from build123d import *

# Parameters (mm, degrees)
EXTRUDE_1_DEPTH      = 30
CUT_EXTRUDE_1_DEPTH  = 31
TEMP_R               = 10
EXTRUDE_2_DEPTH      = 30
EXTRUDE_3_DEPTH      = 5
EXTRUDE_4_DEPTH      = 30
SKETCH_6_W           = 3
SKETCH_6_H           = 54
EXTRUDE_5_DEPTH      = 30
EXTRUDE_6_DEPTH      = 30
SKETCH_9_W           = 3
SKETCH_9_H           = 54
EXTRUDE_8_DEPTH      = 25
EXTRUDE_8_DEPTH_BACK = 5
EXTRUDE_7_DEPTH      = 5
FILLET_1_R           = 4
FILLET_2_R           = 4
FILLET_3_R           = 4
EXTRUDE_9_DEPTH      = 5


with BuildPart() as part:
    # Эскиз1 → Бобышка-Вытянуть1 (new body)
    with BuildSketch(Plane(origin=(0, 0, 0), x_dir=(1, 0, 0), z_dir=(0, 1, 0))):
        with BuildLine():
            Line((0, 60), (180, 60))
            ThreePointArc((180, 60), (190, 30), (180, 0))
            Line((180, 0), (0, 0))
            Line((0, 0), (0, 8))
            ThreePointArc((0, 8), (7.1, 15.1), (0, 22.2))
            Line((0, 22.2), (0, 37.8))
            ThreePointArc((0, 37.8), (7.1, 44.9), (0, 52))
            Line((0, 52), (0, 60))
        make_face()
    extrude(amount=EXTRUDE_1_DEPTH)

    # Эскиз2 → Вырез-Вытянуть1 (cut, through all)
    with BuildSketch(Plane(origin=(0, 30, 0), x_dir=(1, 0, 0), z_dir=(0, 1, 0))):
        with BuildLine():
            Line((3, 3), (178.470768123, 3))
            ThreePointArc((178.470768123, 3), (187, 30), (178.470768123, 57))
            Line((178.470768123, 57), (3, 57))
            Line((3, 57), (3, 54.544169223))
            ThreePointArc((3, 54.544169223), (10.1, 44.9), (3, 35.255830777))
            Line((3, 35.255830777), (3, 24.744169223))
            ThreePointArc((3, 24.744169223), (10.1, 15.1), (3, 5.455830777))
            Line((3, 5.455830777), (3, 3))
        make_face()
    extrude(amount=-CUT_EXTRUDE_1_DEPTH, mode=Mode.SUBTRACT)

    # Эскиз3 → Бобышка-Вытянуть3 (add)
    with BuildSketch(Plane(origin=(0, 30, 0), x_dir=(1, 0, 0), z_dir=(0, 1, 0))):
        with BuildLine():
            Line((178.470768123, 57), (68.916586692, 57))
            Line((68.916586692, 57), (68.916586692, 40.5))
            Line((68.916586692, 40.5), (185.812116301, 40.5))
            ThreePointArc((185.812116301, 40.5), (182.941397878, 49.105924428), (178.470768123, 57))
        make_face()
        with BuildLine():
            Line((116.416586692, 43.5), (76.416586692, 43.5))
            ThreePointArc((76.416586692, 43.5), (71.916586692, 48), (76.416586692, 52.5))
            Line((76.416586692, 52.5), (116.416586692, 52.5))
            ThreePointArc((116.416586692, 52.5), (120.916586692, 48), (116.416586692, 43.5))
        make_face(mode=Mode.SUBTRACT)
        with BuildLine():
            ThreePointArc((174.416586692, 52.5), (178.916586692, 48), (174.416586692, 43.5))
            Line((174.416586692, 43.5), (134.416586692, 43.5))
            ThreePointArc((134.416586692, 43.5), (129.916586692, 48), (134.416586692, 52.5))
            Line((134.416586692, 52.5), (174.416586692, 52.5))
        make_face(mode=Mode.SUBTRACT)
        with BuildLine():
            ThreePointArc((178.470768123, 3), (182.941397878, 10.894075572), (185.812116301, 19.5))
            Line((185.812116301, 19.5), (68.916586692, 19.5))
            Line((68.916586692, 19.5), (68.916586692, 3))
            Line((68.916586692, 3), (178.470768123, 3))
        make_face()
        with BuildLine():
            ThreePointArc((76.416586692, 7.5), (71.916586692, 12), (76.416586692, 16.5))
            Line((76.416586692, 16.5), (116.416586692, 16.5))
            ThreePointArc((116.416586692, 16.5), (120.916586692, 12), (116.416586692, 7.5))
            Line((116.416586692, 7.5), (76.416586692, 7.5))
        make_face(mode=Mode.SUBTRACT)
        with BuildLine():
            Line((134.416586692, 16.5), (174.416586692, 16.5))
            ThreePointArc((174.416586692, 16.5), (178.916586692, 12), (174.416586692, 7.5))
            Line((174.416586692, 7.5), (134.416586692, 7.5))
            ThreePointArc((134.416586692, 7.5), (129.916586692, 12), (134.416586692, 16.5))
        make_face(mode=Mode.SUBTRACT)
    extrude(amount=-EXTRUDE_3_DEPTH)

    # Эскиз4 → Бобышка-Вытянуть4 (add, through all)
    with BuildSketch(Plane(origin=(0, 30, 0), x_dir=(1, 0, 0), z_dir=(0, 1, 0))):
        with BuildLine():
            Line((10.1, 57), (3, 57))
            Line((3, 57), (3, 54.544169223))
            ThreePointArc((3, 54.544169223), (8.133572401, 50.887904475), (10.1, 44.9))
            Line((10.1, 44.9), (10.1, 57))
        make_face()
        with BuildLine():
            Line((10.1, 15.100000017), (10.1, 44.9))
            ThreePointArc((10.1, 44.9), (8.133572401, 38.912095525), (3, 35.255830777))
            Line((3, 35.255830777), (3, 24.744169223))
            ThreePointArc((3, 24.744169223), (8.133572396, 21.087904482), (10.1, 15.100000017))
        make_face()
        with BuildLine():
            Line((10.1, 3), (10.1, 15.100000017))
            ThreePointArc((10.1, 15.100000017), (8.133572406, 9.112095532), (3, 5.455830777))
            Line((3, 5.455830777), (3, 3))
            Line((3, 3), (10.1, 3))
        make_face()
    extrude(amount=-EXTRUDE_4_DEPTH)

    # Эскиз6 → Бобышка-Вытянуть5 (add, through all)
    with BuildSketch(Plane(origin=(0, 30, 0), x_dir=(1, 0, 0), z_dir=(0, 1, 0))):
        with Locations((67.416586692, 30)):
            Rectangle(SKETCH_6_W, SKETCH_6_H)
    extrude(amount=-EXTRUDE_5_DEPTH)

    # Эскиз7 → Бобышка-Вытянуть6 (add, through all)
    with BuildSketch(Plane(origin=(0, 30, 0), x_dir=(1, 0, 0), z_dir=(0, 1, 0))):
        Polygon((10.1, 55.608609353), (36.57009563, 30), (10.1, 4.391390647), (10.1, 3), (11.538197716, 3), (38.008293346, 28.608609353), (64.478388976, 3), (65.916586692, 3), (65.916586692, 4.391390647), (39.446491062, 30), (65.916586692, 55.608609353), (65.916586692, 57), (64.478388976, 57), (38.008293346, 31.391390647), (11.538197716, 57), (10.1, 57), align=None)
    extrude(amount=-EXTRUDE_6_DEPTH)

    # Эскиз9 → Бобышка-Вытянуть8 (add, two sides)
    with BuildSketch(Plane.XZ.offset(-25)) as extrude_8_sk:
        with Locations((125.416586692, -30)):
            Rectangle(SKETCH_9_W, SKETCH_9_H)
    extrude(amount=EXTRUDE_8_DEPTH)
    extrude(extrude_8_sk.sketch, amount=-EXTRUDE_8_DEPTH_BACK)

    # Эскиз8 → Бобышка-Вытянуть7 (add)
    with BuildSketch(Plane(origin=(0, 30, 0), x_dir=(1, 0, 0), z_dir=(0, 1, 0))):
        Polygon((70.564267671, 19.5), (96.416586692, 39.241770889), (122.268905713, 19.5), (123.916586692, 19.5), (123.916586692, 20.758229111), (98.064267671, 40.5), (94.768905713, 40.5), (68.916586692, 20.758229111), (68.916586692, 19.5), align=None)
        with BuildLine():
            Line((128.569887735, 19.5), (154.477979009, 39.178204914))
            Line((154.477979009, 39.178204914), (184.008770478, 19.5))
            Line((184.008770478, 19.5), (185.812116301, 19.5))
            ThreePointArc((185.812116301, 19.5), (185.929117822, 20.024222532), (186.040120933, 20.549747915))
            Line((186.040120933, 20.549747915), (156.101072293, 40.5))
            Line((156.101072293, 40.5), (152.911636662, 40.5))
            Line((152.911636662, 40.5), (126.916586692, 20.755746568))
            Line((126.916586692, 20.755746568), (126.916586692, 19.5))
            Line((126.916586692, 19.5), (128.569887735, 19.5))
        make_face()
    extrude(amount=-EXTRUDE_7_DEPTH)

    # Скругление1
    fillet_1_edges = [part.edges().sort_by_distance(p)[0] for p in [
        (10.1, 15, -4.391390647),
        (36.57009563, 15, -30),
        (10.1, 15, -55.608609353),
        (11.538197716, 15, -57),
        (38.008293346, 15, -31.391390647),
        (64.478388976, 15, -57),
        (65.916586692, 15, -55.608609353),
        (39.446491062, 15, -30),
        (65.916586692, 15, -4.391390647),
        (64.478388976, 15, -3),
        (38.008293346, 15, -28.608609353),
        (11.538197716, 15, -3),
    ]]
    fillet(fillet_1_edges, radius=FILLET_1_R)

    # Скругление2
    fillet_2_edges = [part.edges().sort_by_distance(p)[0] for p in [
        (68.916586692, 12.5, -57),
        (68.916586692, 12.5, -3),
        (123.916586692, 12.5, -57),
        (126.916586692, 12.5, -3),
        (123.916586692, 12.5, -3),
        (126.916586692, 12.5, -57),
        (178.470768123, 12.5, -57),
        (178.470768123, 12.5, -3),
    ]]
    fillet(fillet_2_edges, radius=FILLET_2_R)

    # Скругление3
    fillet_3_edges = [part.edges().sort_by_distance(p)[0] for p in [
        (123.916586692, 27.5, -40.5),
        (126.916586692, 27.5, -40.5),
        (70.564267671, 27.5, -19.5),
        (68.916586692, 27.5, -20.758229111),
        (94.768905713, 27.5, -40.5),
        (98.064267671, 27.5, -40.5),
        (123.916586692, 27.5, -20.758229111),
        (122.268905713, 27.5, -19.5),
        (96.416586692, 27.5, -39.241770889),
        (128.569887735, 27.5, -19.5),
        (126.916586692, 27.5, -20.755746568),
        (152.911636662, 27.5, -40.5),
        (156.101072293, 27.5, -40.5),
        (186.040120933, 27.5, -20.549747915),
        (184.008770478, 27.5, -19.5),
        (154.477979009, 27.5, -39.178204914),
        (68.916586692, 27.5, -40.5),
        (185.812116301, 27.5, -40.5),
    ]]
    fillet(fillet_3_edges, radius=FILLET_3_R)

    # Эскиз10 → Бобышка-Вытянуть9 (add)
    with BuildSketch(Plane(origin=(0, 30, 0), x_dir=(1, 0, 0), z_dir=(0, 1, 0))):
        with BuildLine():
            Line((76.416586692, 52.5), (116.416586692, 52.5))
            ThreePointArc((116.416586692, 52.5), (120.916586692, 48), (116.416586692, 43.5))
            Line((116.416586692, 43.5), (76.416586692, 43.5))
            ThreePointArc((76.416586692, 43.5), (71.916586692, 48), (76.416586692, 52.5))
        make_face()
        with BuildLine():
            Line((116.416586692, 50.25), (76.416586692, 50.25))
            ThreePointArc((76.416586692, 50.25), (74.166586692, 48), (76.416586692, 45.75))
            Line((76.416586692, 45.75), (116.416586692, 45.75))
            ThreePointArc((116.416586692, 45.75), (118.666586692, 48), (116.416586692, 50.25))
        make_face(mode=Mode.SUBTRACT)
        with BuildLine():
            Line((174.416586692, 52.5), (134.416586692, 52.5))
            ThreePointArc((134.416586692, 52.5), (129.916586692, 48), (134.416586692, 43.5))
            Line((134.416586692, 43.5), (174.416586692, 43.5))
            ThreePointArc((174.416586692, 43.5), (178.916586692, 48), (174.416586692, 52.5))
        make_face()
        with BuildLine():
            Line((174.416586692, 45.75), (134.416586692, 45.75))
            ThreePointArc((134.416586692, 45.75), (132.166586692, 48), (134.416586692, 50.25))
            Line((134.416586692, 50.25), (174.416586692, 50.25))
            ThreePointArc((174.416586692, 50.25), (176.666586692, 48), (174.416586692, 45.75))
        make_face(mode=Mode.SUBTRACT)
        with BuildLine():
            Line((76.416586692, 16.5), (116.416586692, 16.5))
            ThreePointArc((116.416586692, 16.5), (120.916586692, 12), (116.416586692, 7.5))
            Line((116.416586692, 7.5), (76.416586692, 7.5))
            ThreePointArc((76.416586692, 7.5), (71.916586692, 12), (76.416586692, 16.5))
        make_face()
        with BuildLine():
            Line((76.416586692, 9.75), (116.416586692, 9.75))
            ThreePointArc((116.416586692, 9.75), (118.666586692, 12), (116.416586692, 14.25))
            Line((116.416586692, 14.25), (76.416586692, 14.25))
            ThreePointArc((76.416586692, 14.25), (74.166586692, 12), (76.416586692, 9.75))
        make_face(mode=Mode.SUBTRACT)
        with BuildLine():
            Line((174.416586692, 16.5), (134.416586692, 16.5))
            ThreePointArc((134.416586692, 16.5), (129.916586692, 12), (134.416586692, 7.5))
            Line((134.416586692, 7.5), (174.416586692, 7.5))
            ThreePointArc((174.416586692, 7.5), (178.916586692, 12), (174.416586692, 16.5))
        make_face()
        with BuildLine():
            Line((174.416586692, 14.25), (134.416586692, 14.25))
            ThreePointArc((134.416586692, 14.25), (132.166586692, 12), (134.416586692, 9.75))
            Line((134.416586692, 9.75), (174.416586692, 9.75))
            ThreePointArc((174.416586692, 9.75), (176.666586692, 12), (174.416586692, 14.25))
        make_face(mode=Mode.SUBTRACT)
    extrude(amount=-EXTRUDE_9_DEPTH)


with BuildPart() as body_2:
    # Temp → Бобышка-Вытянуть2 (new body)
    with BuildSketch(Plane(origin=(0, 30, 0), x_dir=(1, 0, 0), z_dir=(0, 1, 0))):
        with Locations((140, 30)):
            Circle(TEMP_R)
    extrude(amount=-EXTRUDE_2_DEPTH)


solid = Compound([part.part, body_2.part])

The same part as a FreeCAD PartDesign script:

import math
import FreeCAD as App
import Part
import Sketcher
from FreeCAD import Vector


def edges_at(feature, points):
    """Names of the edges that pass closest to the given points."""
    edges = feature.Shape.Edges
    near = lambda p: min(range(len(edges)), key=lambda i: edges[i].distToShape(Part.Vertex(*p))[0])
    return sorted({f"Edge{near(p) + 1}" for p in points})

doc = App.newDocument("Part")
params = doc.addObject("Spreadsheet::Sheet", "Params")
for row, (alias, value) in enumerate([
    ("sketch1_radius", "50 mm"),
    ("sketch1_radius2", "7.1 mm"),
    ("sketch1_width", "180 mm"),
    ("sketch1_height", "8 mm"),
    ("sketch1_height2", "15.6 mm"),
    ("pad1_length", "30 mm"),
    ("sketch2_radius", "47 mm"),
    ("sketch2_radius2", "10.1 mm"),
    ("sketch3_radius", "47 mm"),
    ("sketch3_radius2", "4.5 mm"),
    ("sketch3_width", "40 mm"),
    ("sketch3_height", "16.5 mm"),
    ("pad2_length", "5 mm"),
    ("sketch4_radius", "10.1 mm"),
    ("sketch4_width", "7.1 mm"),
    ("sketch4_height", "12.1 mm"),
    ("sketch4_height2", "29.8 mm"),
    ("pad3_length", "30 mm"),
    ("sketch5_width", "3 mm"),
    ("sketch5_height", "54 mm"),
    ("pad4_length", "30 mm"),
    ("pad5_length", "30 mm"),
    ("sketch7_width", "3 mm"),
    ("sketch7_height", "54 mm"),
    ("pad6_length", "25 mm"),
    ("pad6_length2", "5 mm"),
    ("pad7_length", "5 mm"),
    ("fillet_radius", "4 mm"),
    ("fillet2_radius", "4 mm"),
    ("fillet3_radius", "4 mm"),
    ("sketch9_radius", "4.5 mm"),
    ("sketch9_width", "40 mm"),
    ("sketch9_radius2", "2.25 mm"),
    ("pad8_length", "5 mm"),
    ("sketch10_diameter", "20 mm"),
    ("pad9_length", "30 mm"),
], start=1):
    params.set(f"A{row}", alias)
    params.set(f"B{row}", "=" + value)
    params.setAlias(f"B{row}", alias)

body = doc.addObject("PartDesign::Body", "Body")

sketch1 = body.newObject("Sketcher::SketchObject", "Sketch")
sketch1.AttachmentSupport = (doc.getObject("XZ_Plane"), [""])
sketch1.MapMode = "FlatFace"
sketch1.addGeometry([
    Part.LineSegment(Vector(180, -60, 0), Vector(0, -60, 0)),
    Part.LineSegment(Vector(0, -60, 0), Vector(0, -52, 0)),
    Part.ArcOfCircle(Part.Circle(Vector(0, -45, 0), Vector(0, 0, 1), 7), math.radians(-90), math.radians(90)),
    Part.LineSegment(Vector(0, -38, 0), Vector(0, -22, 0)),
    Part.ArcOfCircle(Part.Circle(Vector(0, -15, 0), Vector(0, 0, 1), 7), math.radians(-90), math.radians(90)),
    Part.LineSegment(Vector(0, -8, 0), Vector(0, 0, 0)),
    Part.LineSegment(Vector(0, 0, 0), Vector(180, 0, 0)),
    Part.ArcOfCircle(Part.Circle(Vector(140, -30, 0), Vector(0, 0, 1), 50), math.radians(-37), math.radians(37)),
], False)
sketch1.addConstraint([
    Sketcher.Constraint("Coincident", 0, 2, 1, 1),
    Sketcher.Constraint("Coincident", 1, 2, 2, 1),
    Sketcher.Constraint("Coincident", 2, 2, 3, 1),
    Sketcher.Constraint("Coincident", 3, 2, 4, 1),
    Sketcher.Constraint("Coincident", 4, 2, 5, 1),
    Sketcher.Constraint("Coincident", 5, 2, 6, 1),
    Sketcher.Constraint("Coincident", 6, 2, 7, 2),
    Sketcher.Constraint("Coincident", 7, 1, 0, 1),
    Sketcher.Constraint("Horizontal", 0),
    Sketcher.Constraint("Vertical", 1),
    Sketcher.Constraint("Vertical", 3),
    Sketcher.Constraint("Vertical", 5),
    Sketcher.Constraint("Horizontal", 6),
    Sketcher.Constraint("Coincident", 5, 2, -1, 1),
    Sketcher.Constraint("Equal", 2, 4),
    Sketcher.Constraint("PointOnObject", 2, 3, -2),
    Sketcher.Constraint("PointOnObject", 4, 3, -2),
    Sketcher.Constraint("PointOnObject", 0, 2, -2),
    Sketcher.Constraint("PointOnObject", 2, 2, -2),
    Sketcher.Constraint("Vertical", 6, 2, 7, 1),
    Sketcher.Constraint("Equal", 1, 5),
    Sketcher.Constraint("Radius", 7, 50.0),
    Sketcher.Constraint("Radius", 2, 7.1),
    Sketcher.Constraint("DistanceX", 0, 2, 0, 1, 180.0),
    Sketcher.Constraint("DistanceY", 1, 1, 1, 2, 8.0),
    Sketcher.Constraint("DistanceY", 3, 1, 3, 2, 15.6),
])
sketch1.setExpression("Constraints[21]", "Params.sketch1_radius")
sketch1.setExpression("Constraints[22]", "Params.sketch1_radius2")
sketch1.setExpression("Constraints[23]", "Params.sketch1_width")
sketch1.setExpression("Constraints[24]", "Params.sketch1_height")
sketch1.setExpression("Constraints[25]", "Params.sketch1_height2")
pad1 = body.newObject("PartDesign::Pad", "Pad")
pad1.Profile = sketch1
pad1.setExpression("Length", "Params.pad1_length")
pad1.Reversed = True

sketch2 = body.newObject("Sketcher::SketchObject", "Sketch001")
sketch2.AttachmentSupport = (doc.getObject("XZ_Plane"), [""])
sketch2.MapMode = "FlatFace"
sketch2.AttachmentOffset = App.Placement(Vector(0, 0, -30), App.Rotation())
sketch2.addGeometry([
    Part.LineSegment(Vector(3, -3, 0), Vector(178.5, -3, 0)),
    Part.ArcOfCircle(Part.Circle(Vector(140, -30, 0), Vector(0, 0, 1), 47), math.radians(-35), math.radians(35)),
    Part.LineSegment(Vector(178.5, -57, 0), Vector(3, -57, 0)),
    Part.LineSegment(Vector(3, -57, 0), Vector(3, -54.5, 0)),
    Part.ArcOfCircle(Part.Circle(Vector(0, -44.9, 0), Vector(0, 0, 1), 10.1), math.radians(-73), math.radians(73)),
    Part.LineSegment(Vector(3, -35.3, 0), Vector(3, -24.7, 0)),
    Part.ArcOfCircle(Part.Circle(Vector(0, -15.1, 0), Vector(0, 0, 1), 10.1), math.radians(-73), math.radians(73)),
    Part.LineSegment(Vector(3, -5.5, 0), Vector(3, -3, 0)),
], False)
sketch2.addConstraint([
    Sketcher.Constraint("Coincident", 0, 2, 1, 2),
    Sketcher.Constraint("Coincident", 1, 1, 2, 1),
    Sketcher.Constraint("Coincident", 2, 2, 3, 1),
    Sketcher.Constraint("Coincident", 3, 2, 4, 1),
    Sketcher.Constraint("Coincident", 4, 2, 5, 1),
    Sketcher.Constraint("Coincident", 5, 2, 6, 1),
    Sketcher.Constraint("Coincident", 6, 2, 7, 1),
    Sketcher.Constraint("Coincident", 7, 2, 0, 1),
    Sketcher.Constraint("Horizontal", 0),
    Sketcher.Constraint("Horizontal", 2),
    Sketcher.Constraint("Vertical", 3),
    Sketcher.Constraint("Vertical", 5),
    Sketcher.Constraint("Vertical", 7),
    Sketcher.Constraint("Equal", 4, 6),
    Sketcher.Constraint("PointOnObject", 4, 3, -2),
    Sketcher.Constraint("PointOnObject", 6, 3, -2),
    Sketcher.Constraint("Vertical", 0, 2, 1, 1),
    Sketcher.Constraint("Vertical", 3, 2, 4, 2),
    Sketcher.Constraint("Vertical", 5, 2, 6, 2),
    Sketcher.Constraint("Equal", 3, 7),
    Sketcher.Constraint("Radius", 1, 47.0),
    Sketcher.Constraint("Radius", 4, 10.1),
    Sketcher.Constraint("DistanceX", -1, 1, 1, 3, 140.0),
    Sketcher.Constraint("DistanceY", 1, 3, -1, 1, 30.0),
    Sketcher.Constraint("DistanceY", 0, 2, -1, 1, 3.0),
    Sketcher.Constraint("DistanceX", -1, 1, 2, 2, 3.0),
    Sketcher.Constraint("DistanceY", 4, 3, -1, 1, 44.9),
])
sketch2.setExpression("Constraints[20]", "Params.sketch2_radius")
sketch2.setExpression("Constraints[21]", "Params.sketch2_radius2")
pocket1 = body.newObject("PartDesign::Pocket", "Pocket")
pocket1.Profile = sketch2
pocket1.Type = "ThroughAll"
pocket1.Reversed = True

sketch3 = body.newObject("Sketcher::SketchObject", "Sketch002")
sketch3.AttachmentSupport = (doc.getObject("XZ_Plane"), [""])
sketch3.MapMode = "FlatFace"
sketch3.AttachmentOffset = App.Placement(Vector(0, 0, -30), App.Rotation())
sketch3.addGeometry([
    Part.LineSegment(Vector(178.5, -57, 0), Vector(68.9, -57, 0)),
    Part.LineSegment(Vector(68.9, -57, 0), Vector(68.9, -40.5, 0)),
    Part.LineSegment(Vector(68.9, -40.5, 0), Vector(185.8, -40.5, 0)),
    Part.ArcOfCircle(Part.Circle(Vector(140, -30, 0), Vector(0, 0, 1), 47), math.radians(-35), math.radians(-13)),
    Part.ArcOfCircle(Part.Circle(Vector(116.4, -48, 0), Vector(0, 0, 1), 4.5), math.radians(-90), math.radians(90)),
    Part.LineSegment(Vector(116.4, -43.5, 0), Vector(76.4, -43.5, 0)),
    Part.ArcOfCircle(Part.Circle(Vector(76.4, -48, 0), Vector(0, 0, 1), 4.5), math.radians(90), math.radians(270)),
    Part.LineSegment(Vector(76.4, -52.5, 0), Vector(116.4, -52.5, 0)),
    Part.LineSegment(Vector(134.4, -52.5, 0), Vector(174.4, -52.5, 0)),
    Part.ArcOfCircle(Part.Circle(Vector(174.4, -48, 0), Vector(0, 0, 1), 4.5), math.radians(-90), math.radians(90)),
    Part.LineSegment(Vector(174.4, -43.5, 0), Vector(134.4, -43.5, 0)),
    Part.ArcOfCircle(Part.Circle(Vector(134.4, -48, 0), Vector(0, 0, 1), 4.5), math.radians(90), math.radians(270)),
    Part.ArcOfCircle(Part.Circle(Vector(140, -30, 0), Vector(0, 0, 1), 47), math.radians(13), math.radians(35)),
    Part.LineSegment(Vector(185.8, -19.5, 0), Vector(68.9, -19.5, 0)),
    Part.LineSegment(Vector(68.9, -19.5, 0), Vector(68.9, -3, 0)),
    Part.LineSegment(Vector(68.9, -3, 0), Vector(178.5, -3, 0)),
    Part.LineSegment(Vector(116.4, -7.5, 0), Vector(76.4, -7.5, 0)),
    Part.ArcOfCircle(Part.Circle(Vector(76.4, -12, 0), Vector(0, 0, 1), 4.5), math.radians(90), math.radians(270)),
    Part.LineSegment(Vector(76.4, -16.5, 0), Vector(116.4, -16.5, 0)),
    Part.ArcOfCircle(Part.Circle(Vector(116.4, -12, 0), Vector(0, 0, 1), 4.5), math.radians(-90), math.radians(90)),
    Part.ArcOfCircle(Part.Circle(Vector(134.4, -12, 0), Vector(0, 0, 1), 4.5), math.radians(90), math.radians(270)),
    Part.LineSegment(Vector(134.4, -16.5, 0), Vector(174.4, -16.5, 0)),
    Part.ArcOfCircle(Part.Circle(Vector(174.4, -12, 0), Vector(0, 0, 1), 4.5), math.radians(-90), math.radians(90)),
    Part.LineSegment(Vector(174.4, -7.5, 0), Vector(134.4, -7.5, 0)),
], False)
sketch3.addConstraint([
    Sketcher.Constraint("Coincident", 0, 2, 1, 1),
    Sketcher.Constraint("Coincident", 1, 2, 2, 1),
    Sketcher.Constraint("Coincident", 2, 2, 3, 2),
    Sketcher.Constraint("Coincident", 3, 1, 0, 1),
    Sketcher.Constraint("Tangent", 4, 2, 5, 1),
    Sketcher.Constraint("Tangent", 5, 2, 6, 1),
    Sketcher.Constraint("Tangent", 6, 2, 7, 1),
    Sketcher.Constraint("Tangent", 7, 2, 4, 1),
    Sketcher.Constraint("Tangent", 8, 2, 9, 1),
    Sketcher.Constraint("Tangent", 9, 2, 10, 1),
    Sketcher.Constraint("Tangent", 10, 2, 11, 1),
    Sketcher.Constraint("Tangent", 11, 2, 8, 1),
    Sketcher.Constraint("Coincident", 12, 1, 13, 1),
    Sketcher.Constraint("Coincident", 13, 2, 14, 1),
    Sketcher.Constraint("Coincident", 14, 2, 15, 1),
    Sketcher.Constraint("Coincident", 15, 2, 12, 2),
    Sketcher.Constraint("Tangent", 16, 2, 17, 1),
    Sketcher.Constraint("Tangent", 17, 2, 18, 1),
    Sketcher.Constraint("Tangent", 18, 2, 19, 1),
    Sketcher.Constraint("Tangent", 19, 2, 16, 1),
    Sketcher.Constraint("Tangent", 20, 2, 21, 1),
    Sketcher.Constraint("Tangent", 21, 2, 22, 1),
    Sketcher.Constraint("Tangent", 22, 2, 23, 1),
    Sketcher.Constraint("Tangent", 23, 2, 20, 1),
    Sketcher.Constraint("Horizontal", 0),
    Sketcher.Constraint("Vertical", 1),
    Sketcher.Constraint("Horizontal", 2),
    Sketcher.Constraint("Horizontal", 5),
    Sketcher.Constraint("Horizontal", 7),
    Sketcher.Constraint("Horizontal", 8),
    Sketcher.Constraint("Horizontal", 10),
    Sketcher.Constraint("Horizontal", 13),
    Sketcher.Constraint("Vertical", 14),
    Sketcher.Constraint("Horizontal", 15),
    Sketcher.Constraint("Horizontal", 16),
    Sketcher.Constraint("Horizontal", 18),
    Sketcher.Constraint("Horizontal", 21),
    Sketcher.Constraint("Horizontal", 23),
    Sketcher.Constraint("Coincident", 12, 3, 3, 3),
    Sketcher.Constraint("Equal", 6, 9),
    Sketcher.Constraint("Equal", 3, 12),
    Sketcher.Constraint("Equal", 11, 17),
    Sketcher.Constraint("Equal", 19, 20),
    Sketcher.Constraint("Horizontal", 6, 3, 9, 3),
    Sketcher.Constraint("Horizontal", 19, 3, 20, 3),
    Sketcher.Constraint("Vertical", 6, 3, 17, 3),
    Sketcher.Constraint("Vertical", 4, 3, 19, 3),
    Sketcher.Constraint("Vertical", 11, 3, 20, 3),
    Sketcher.Constraint("Vertical", 9, 3, 22, 3),
    Sketcher.Constraint("Vertical", 2, 2, 12, 1),
    Sketcher.Constraint("Vertical", 1, 2, 13, 2),
    Sketcher.Constraint("Vertical", 3, 1, 15, 2),
    Sketcher.Constraint("Equal", 7, 8),
    Sketcher.Constraint("Radius", 3, 47.0),
    Sketcher.Constraint("Radius", 4, 4.5),
    Sketcher.Constraint("DistanceX", 5, 2, 5, 1, 40.0),
    Sketcher.Constraint("DistanceY", 1, 1, 1, 2, 16.5),
    Sketcher.Constraint("DistanceX", -1, 1, 3, 3, 140.0),
    Sketcher.Constraint("DistanceY", 3, 3, -1, 1, 30.0),
    Sketcher.Constraint("DistanceY", 4, 3, -1, 1, 48.0),
    Sketcher.Constraint("DistanceY", 17, 3, -1, 1, 12.0),
    Sketcher.Constraint("DistanceY", 0, 2, -1, 1, 57.0),
    Sketcher.Constraint("DistanceX", 4, 3, 9, 3, 58.0),
    Sketcher.Constraint("DistanceX", 0, 2, 6, 3, 7.5),
    Sketcher.Constraint("DistanceX", 0, 2, 0, 1, 109.554181),
])
sketch3.setExpression("Constraints[53]", "Params.sketch3_radius")
sketch3.setExpression("Constraints[54]", "Params.sketch3_radius2")
sketch3.setExpression("Constraints[55]", "Params.sketch3_width")
sketch3.setExpression("Constraints[56]", "Params.sketch3_height")
pad2 = body.newObject("PartDesign::Pad", "Pad001")
pad2.Profile = sketch3
pad2.setExpression("Length", "Params.pad2_length")

sketch4 = body.newObject("Sketcher::SketchObject", "Sketch003")
sketch4.AttachmentSupport = (doc.getObject("XZ_Plane"), [""])
sketch4.MapMode = "FlatFace"
sketch4.AttachmentOffset = App.Placement(Vector(0, 0, -30), App.Rotation())
sketch4.addGeometry([
    Part.LineSegment(Vector(10.1, -57, 0), Vector(3, -57, 0)),
    Part.LineSegment(Vector(3, -57, 0), Vector(3, -54.5, 0)),
    Part.ArcOfCircle(Part.Circle(Vector(0, -44.9, 0), Vector(0, 0, 1), 10.1), math.radians(-73), math.radians(0)),
    Part.LineSegment(Vector(10.1, -44.9, 0), Vector(10.1, -57, 0)),
    Part.LineSegment(Vector(10.1, -15.1, 0), Vector(10.1, -44.9, 0)),
    Part.ArcOfCircle(Part.Circle(Vector(0, -44.9, 0), Vector(0, 0, 1), 10.1), math.radians(0), math.radians(73)),
    Part.LineSegment(Vector(3, -35.3, 0), Vector(3, -24.7, 0)),
    Part.ArcOfCircle(Part.Circle(Vector(0, -15.1, 0), Vector(0, 0, 1), 10.1), math.radians(-73), math.radians(0)),
    Part.LineSegment(Vector(10.1, -3, 0), Vector(10.1, -15.1, 0)),
    Part.ArcOfCircle(Part.Circle(Vector(0, -15.1, 0), Vector(0, 0, 1), 10.1), math.radians(0), math.radians(73)),
    Part.LineSegment(Vector(3, -5.5, 0), Vector(3, -3, 0)),
    Part.LineSegment(Vector(3, -3, 0), Vector(10.1, -3, 0)),
], False)
sketch4.addConstraint([
    Sketcher.Constraint("Coincident", 0, 2, 1, 1),
    Sketcher.Constraint("Coincident", 1, 2, 2, 1),
    Sketcher.Constraint("Tangent", 2, 2, 3, 1),
    Sketcher.Constraint("Coincident", 3, 2, 0, 1),
    Sketcher.Constraint("Tangent", 4, 2, 5, 1),
    Sketcher.Constraint("Coincident", 5, 2, 6, 1),
    Sketcher.Constraint("Coincident", 6, 2, 7, 1),
    Sketcher.Constraint("Tangent", 7, 2, 4, 1),
    Sketcher.Constraint("Tangent", 8, 2, 9, 1),
    Sketcher.Constraint("Coincident", 9, 2, 10, 1),
    Sketcher.Constraint("Coincident", 10, 2, 11, 1),
    Sketcher.Constraint("Coincident", 11, 2, 8, 1),
    Sketcher.Constraint("Horizontal", 0),
    Sketcher.Constraint("Vertical", 1),
    Sketcher.Constraint("Vertical", 3),
    Sketcher.Constraint("Vertical", 4),
    Sketcher.Constraint("Vertical", 6),
    Sketcher.Constraint("Vertical", 8),
    Sketcher.Constraint("Vertical", 10),
    Sketcher.Constraint("Horizontal", 11),
    Sketcher.Constraint("Coincident", 5, 3, 2, 3),
    Sketcher.Constraint("Coincident", 9, 3, 7, 3),
    Sketcher.Constraint("Equal", 2, 5),
    Sketcher.Constraint("Equal", 5, 7),
    Sketcher.Constraint("Equal", 7, 9),
    Sketcher.Constraint("PointOnObject", 2, 3, -2),
    Sketcher.Constraint("Vertical", 1, 2, 5, 2),
    Sketcher.Constraint("Vertical", 6, 2, 9, 2),
    Sketcher.Constraint("Equal", 3, 8),
    Sketcher.Constraint("Radius", 2, 10.1),
    Sketcher.Constraint("DistanceX", 0, 2, 0, 1, 7.1),
    Sketcher.Constraint("DistanceY", 3, 2, 3, 1, 12.1),
    Sketcher.Constraint("DistanceY", 4, 2, 4, 1, 29.8),
    Sketcher.Constraint("DistanceY", 0, 2, -1, 1, 57.0),
])
sketch4.setExpression("Constraints[29]", "Params.sketch4_radius")
sketch4.setExpression("Constraints[30]", "Params.sketch4_width")
sketch4.setExpression("Constraints[31]", "Params.sketch4_height")
sketch4.setExpression("Constraints[32]", "Params.sketch4_height2")
pad3 = body.newObject("PartDesign::Pad", "Pad002")
pad3.Profile = sketch4
pad3.setExpression("Length", "Params.pad3_length")

sketch5 = body.newObject("Sketcher::SketchObject", "Sketch004")
sketch5.AttachmentSupport = (doc.getObject("XZ_Plane"), [""])
sketch5.MapMode = "FlatFace"
sketch5.AttachmentOffset = App.Placement(Vector(0, 0, -30), App.Rotation())
sketch5.addGeometry([
    Part.LineSegment(Vector(65.9, -57, 0), Vector(65.9, -3, 0)),
    Part.LineSegment(Vector(65.9, -3, 0), Vector(68.9, -3, 0)),
    Part.LineSegment(Vector(68.9, -3, 0), Vector(68.9, -57, 0)),
    Part.LineSegment(Vector(68.9, -57, 0), Vector(65.9, -57, 0)),
], False)
sketch5.addConstraint([
    Sketcher.Constraint("Coincident", 0, 2, 1, 1),
    Sketcher.Constraint("Coincident", 1, 2, 2, 1),
    Sketcher.Constraint("Coincident", 2, 2, 3, 1),
    Sketcher.Constraint("Coincident", 3, 2, 0, 1),
    Sketcher.Constraint("Vertical", 0),
    Sketcher.Constraint("Horizontal", 1),
    Sketcher.Constraint("Vertical", 2),
    Sketcher.Constraint("Horizontal", 3),
    Sketcher.Constraint("DistanceX", 1, 1, 1, 2, 3.0),
    Sketcher.Constraint("DistanceY", 0, 1, 0, 2, 54.0),
    Sketcher.Constraint("DistanceY", 0, 2, -1, 1, 3.0),
    Sketcher.Constraint("DistanceX", -1, 1, 0, 2, 65.916587),
])
sketch5.setExpression("Constraints[8]", "Params.sketch5_width")
sketch5.setExpression("Constraints[9]", "Params.sketch5_height")
pad4 = body.newObject("PartDesign::Pad", "Pad003")
pad4.Profile = sketch5
pad4.setExpression("Length", "Params.pad4_length")

sketch6 = body.newObject("Sketcher::SketchObject", "Sketch005")
sketch6.AttachmentSupport = (doc.getObject("XZ_Plane"), [""])
sketch6.MapMode = "FlatFace"
sketch6.AttachmentOffset = App.Placement(Vector(0, 0, -30), App.Rotation())
sketch6.addGeometry([
    Part.LineSegment(Vector(10.1, -55.6, 0), Vector(36.6, -30, 0)),
    Part.LineSegment(Vector(36.6, -30, 0), Vector(10.1, -4.4, 0)),
    Part.LineSegment(Vector(10.1, -4.4, 0), Vector(10.1, -3, 0)),
    Part.LineSegment(Vector(10.1, -3, 0), Vector(11.5, -3, 0)),
    Part.LineSegment(Vector(11.5, -3, 0), Vector(38, -28.6, 0)),
    Part.LineSegment(Vector(38, -28.6, 0), Vector(64.5, -3, 0)),
    Part.LineSegment(Vector(64.5, -3, 0), Vector(65.9, -3, 0)),
    Part.LineSegment(Vector(65.9, -3, 0), Vector(65.9, -4.4, 0)),
    Part.LineSegment(Vector(65.9, -4.4, 0), Vector(39.4, -30, 0)),
    Part.LineSegment(Vector(39.4, -30, 0), Vector(65.9, -55.6, 0)),
    Part.LineSegment(Vector(65.9, -55.6, 0), Vector(65.9, -57, 0)),
    Part.LineSegment(Vector(65.9, -57, 0), Vector(64.5, -57, 0)),
    Part.LineSegment(Vector(64.5, -57, 0), Vector(38, -31.4, 0)),
    Part.LineSegment(Vector(38, -31.4, 0), Vector(11.5, -57, 0)),
    Part.LineSegment(Vector(11.5, -57, 0), Vector(10.1, -57, 0)),
    Part.LineSegment(Vector(10.1, -57, 0), Vector(10.1, -55.6, 0)),
], False)
sketch6.addConstraint([
    Sketcher.Constraint("Coincident", 0, 2, 1, 1),
    Sketcher.Constraint("Coincident", 1, 2, 2, 1),
    Sketcher.Constraint("Coincident", 2, 2, 3, 1),
    Sketcher.Constraint("Coincident", 3, 2, 4, 1),
    Sketcher.Constraint("Coincident", 4, 2, 5, 1),
    Sketcher.Constraint("Coincident", 5, 2, 6, 1),
    Sketcher.Constraint("Coincident", 6, 2, 7, 1),
    Sketcher.Constraint("Coincident", 7, 2, 8, 1),
    Sketcher.Constraint("Coincident", 8, 2, 9, 1),
    Sketcher.Constraint("Coincident", 9, 2, 10, 1),
    Sketcher.Constraint("Coincident", 10, 2, 11, 1),
    Sketcher.Constraint("Coincident", 11, 2, 12, 1),
    Sketcher.Constraint("Coincident", 12, 2, 13, 1),
    Sketcher.Constraint("Coincident", 13, 2, 14, 1),
    Sketcher.Constraint("Coincident", 14, 2, 15, 1),
    Sketcher.Constraint("Coincident", 15, 2, 0, 1),
    Sketcher.Constraint("Vertical", 2),
    Sketcher.Constraint("Horizontal", 3),
    Sketcher.Constraint("Horizontal", 6),
    Sketcher.Constraint("Vertical", 7),
    Sketcher.Constraint("Vertical", 10),
    Sketcher.Constraint("Horizontal", 11),
    Sketcher.Constraint("Horizontal", 14),
    Sketcher.Constraint("Vertical", 15),
    Sketcher.Constraint("Parallel", 1, 4),
    Sketcher.Constraint("Parallel", 0, 5),
    Sketcher.Constraint("Parallel", 5, 8),
    Sketcher.Constraint("Parallel", 4, 9),
    Sketcher.Constraint("Parallel", 9, 12),
    Sketcher.Constraint("Parallel", 8, 13),
    Sketcher.Constraint("Horizontal", 3, 2, 5, 2),
    Sketcher.Constraint("Horizontal", 1, 2, 7, 2),
    Sketcher.Constraint("Horizontal", 0, 2, 8, 2),
    Sketcher.Constraint("Horizontal", 11, 2, 13, 2),
    Sketcher.Constraint("Horizontal", 9, 2, 15, 2),
    Sketcher.Constraint("Vertical", 7, 2, 9, 2),
    Sketcher.Constraint("Vertical", 5, 2, 11, 2),
    Sketcher.Constraint("Vertical", 4, 2, 12, 2),
    Sketcher.Constraint("Vertical", 3, 2, 13, 2),
    Sketcher.Constraint("Equal", 3, 6),
    Sketcher.Constraint("Equal", 7, 10),
    Sketcher.Constraint("Equal", 1, 4),
    Sketcher.Constraint("DistanceY", 0, 2, -1, 1, 30.0),
    Sketcher.Constraint("DistanceY", 2, 2, -1, 1, 3.0),
    Sketcher.Constraint("DistanceX", -1, 1, 1, 2, 10.1),
    Sketcher.Constraint("DistanceY", 2, 1, 2, 2, 1.391391),
    Sketcher.Constraint("DistanceX", 3, 1, 3, 2, 1.438198),
    Sketcher.Constraint("DistanceX", -1, 1, 5, 2, 64.478389),
])
pad5 = body.newObject("PartDesign::Pad", "Pad004")
pad5.Profile = sketch6
pad5.setExpression("Length", "Params.pad5_length")

sketch7 = body.newObject("Sketcher::SketchObject", "Sketch006")
sketch7.AttachmentSupport = (doc.getObject("XZ_Plane"), [""])
sketch7.MapMode = "FlatFace"
sketch7.AttachmentOffset = App.Placement(Vector(0, 0, -25), App.Rotation())
sketch7.addGeometry([
    Part.LineSegment(Vector(123.9, -3, 0), Vector(123.9, -57, 0)),
    Part.LineSegment(Vector(123.9, -57, 0), Vector(126.9, -57, 0)),
    Part.LineSegment(Vector(126.9, -57, 0), Vector(126.9, -3, 0)),
    Part.LineSegment(Vector(126.9, -3, 0), Vector(123.9, -3, 0)),
], False)
sketch7.addConstraint([
    Sketcher.Constraint("Coincident", 0, 2, 1, 1),
    Sketcher.Constraint("Coincident", 1, 2, 2, 1),
    Sketcher.Constraint("Coincident", 2, 2, 3, 1),
    Sketcher.Constraint("Coincident", 3, 2, 0, 1),
    Sketcher.Constraint("Vertical", 0),
    Sketcher.Constraint("Horizontal", 1),
    Sketcher.Constraint("Vertical", 2),
    Sketcher.Constraint("Horizontal", 3),
    Sketcher.Constraint("DistanceX", 1, 1, 1, 2, 3.0),
    Sketcher.Constraint("DistanceY", 0, 2, 0, 1, 54.0),
    Sketcher.Constraint("DistanceY", 0, 2, -1, 1, 57.0),
    Sketcher.Constraint("DistanceX", -1, 1, 0, 2, 123.916587),
])
sketch7.setExpression("Constraints[8]", "Params.sketch7_width")
sketch7.setExpression("Constraints[9]", "Params.sketch7_height")
pad6 = body.newObject("PartDesign::Pad", "Pad005")
pad6.Profile = sketch7
pad6.Type = "TwoLengths"
pad6.setExpression("Length", "Params.pad6_length")
pad6.setExpression("Length2", "Params.pad6_length2")

sketch8 = body.newObject("Sketcher::SketchObject", "Sketch007")
sketch8.AttachmentSupport = (doc.getObject("XZ_Plane"), [""])
sketch8.MapMode = "FlatFace"
sketch8.AttachmentOffset = App.Placement(Vector(0, 0, -30), App.Rotation())
sketch8.addGeometry([
    Part.LineSegment(Vector(70.6, -19.5, 0), Vector(96.4, -39.2, 0)),
    Part.LineSegment(Vector(96.4, -39.2, 0), Vector(122.3, -19.5, 0)),
    Part.LineSegment(Vector(122.3, -19.5, 0), Vector(123.9, -19.5, 0)),
    Part.LineSegment(Vector(123.9, -19.5, 0), Vector(123.9, -20.8, 0)),
    Part.LineSegment(Vector(123.9, -20.8, 0), Vector(98.1, -40.5, 0)),
    Part.LineSegment(Vector(98.1, -40.5, 0), Vector(94.8, -40.5, 0)),
    Part.LineSegment(Vector(94.8, -40.5, 0), Vector(68.9, -20.8, 0)),
    Part.LineSegment(Vector(68.9, -20.8, 0), Vector(68.9, -19.5, 0)),
    Part.LineSegment(Vector(68.9, -19.5, 0), Vector(70.6, -19.5, 0)),
    Part.LineSegment(Vector(128.6, -19.5, 0), Vector(154.5, -39.2, 0)),
    Part.LineSegment(Vector(154.5, -39.2, 0), Vector(184, -19.5, 0)),
    Part.LineSegment(Vector(184, -19.5, 0), Vector(185.8, -19.5, 0)),
    Part.ArcOfCircle(Part.Circle(Vector(140, -30, 0), Vector(0, 0, 1), 47), math.radians(11.6), math.radians(12.91)),
    Part.LineSegment(Vector(186, -20.5, 0), Vector(156.1, -40.5, 0)),
    Part.LineSegment(Vector(156.1, -40.5, 0), Vector(152.9, -40.5, 0)),
    Part.LineSegment(Vector(152.9, -40.5, 0), Vector(126.9, -20.8, 0)),
    Part.LineSegment(Vector(126.9, -20.8, 0), Vector(126.9, -19.5, 0)),
    Part.LineSegment(Vector(126.9, -19.5, 0), Vector(128.6, -19.5, 0)),
], False)
sketch8.addConstraint([
    Sketcher.Constraint("Coincident", 0, 2, 1, 1),
    Sketcher.Constraint("Coincident", 1, 2, 2, 1),
    Sketcher.Constraint("Coincident", 2, 2, 3, 1),
    Sketcher.Constraint("Coincident", 3, 2, 4, 1),
    Sketcher.Constraint("Coincident", 4, 2, 5, 1),
    Sketcher.Constraint("Coincident", 5, 2, 6, 1),
    Sketcher.Constraint("Coincident", 6, 2, 7, 1),
    Sketcher.Constraint("Coincident", 7, 2, 8, 1),
    Sketcher.Constraint("Coincident", 8, 2, 0, 1),
    Sketcher.Constraint("Coincident", 9, 2, 10, 1),
    Sketcher.Constraint("Coincident", 10, 2, 11, 1),
    Sketcher.Constraint("Coincident", 11, 2, 12, 2),
    Sketcher.Constraint("Coincident", 12, 1, 13, 1),
    Sketcher.Constraint("Coincident", 13, 2, 14, 1),
    Sketcher.Constraint("Coincident", 14, 2, 15, 1),
    Sketcher.Constraint("Coincident", 15, 2, 16, 1),
    Sketcher.Constraint("Coincident", 16, 2, 17, 1),
    Sketcher.Constraint("Coincident", 17, 2, 9, 1),
    Sketcher.Constraint("Horizontal", 2),
    Sketcher.Constraint("Vertical", 3),
    Sketcher.Constraint("Horizontal", 5),
    Sketcher.Constraint("Vertical", 7),
    Sketcher.Constraint("Horizontal", 8),
    Sketcher.Constraint("Horizontal", 11),
    Sketcher.Constraint("Horizontal", 14),
    Sketcher.Constraint("Vertical", 16),
    Sketcher.Constraint("Horizontal", 17),
    Sketcher.Constraint("Parallel", 1, 4),
    Sketcher.Constraint("Parallel", 0, 6),
    Sketcher.Constraint("Parallel", 10, 13),
    Sketcher.Constraint("Parallel", 9, 15),
    Sketcher.Constraint("Horizontal", 3, 2, 6, 2),
    Sketcher.Constraint("Horizontal", 2, 2, 7, 2),
    Sketcher.Constraint("Horizontal", 8, 2, 10, 2),
    Sketcher.Constraint("Horizontal", 5, 2, 13, 2),
    Sketcher.Constraint("Horizontal", 11, 2, 16, 2),
    Sketcher.Constraint("Equal", 2, 8),
    Sketcher.Constraint("Equal", 0, 1),
    Sketcher.Constraint("Equal", 1, 4),
    Sketcher.Constraint("DistanceX", -1, 1, 12, 3, 140.000002),
    Sketcher.Constraint("DistanceY", 12, 3, -1, 1, 30.0),
    Sketcher.Constraint("DistanceY", 4, 2, 1, 2, 21.0),
    Sketcher.Constraint("DistanceX", 6, 2, 3, 2, 55.0),
    Sketcher.Constraint("DistanceX", 3, 2, 15, 2, 3.0),
    Sketcher.Constraint("DistanceY", 1, 2, -1, 1, 19.5),
    Sketcher.Constraint("DistanceX", 17, 1, 17, 2, 1.653301),
    Sketcher.Constraint("Radius", 12, 46.999998),
    Sketcher.Constraint("DistanceX", 2, 1, 2, 2, 1.647681),
    Sketcher.Constraint("DistanceY", 3, 2, 3, 1, 1.258229),
    Sketcher.Constraint("DistanceX", 13, 2, 10, 2, 27.907698),
    Sketcher.Constraint("Distance", 10, 35.486609),
    Sketcher.Constraint("DistanceX", 11, 1, 11, 2, 1.803346),
    Sketcher.Constraint("DistanceX", 14, 2, 14, 1, 3.189436),
    Sketcher.Constraint("DistanceY", 16, 1, 16, 2, 1.255747),
    Sketcher.Constraint("DistanceX", 4, 2, 9, 2, 56.413711),
])
pad7 = body.newObject("PartDesign::Pad", "Pad006")
pad7.Profile = sketch8
pad7.setExpression("Length", "Params.pad7_length")
doc.recompute()

fillet = body.newObject("PartDesign::Fillet", "Fillet")
fillet.Base = (pad7, edges_at(pad7, [
    (10.1, 15, -4.391),
    (36.57, 15, -30),
    (10.1, 15, -55.609),
    (11.538, 15, -57),
    (38.008, 15, -31.391),
    (64.478, 15, -57),
    (65.917, 15, -55.609),
    (39.446, 15, -30),
    (65.917, 15, -4.391),
    (64.478, 15, -3),
    (38.008, 15, -28.609),
    (11.538, 15, -3),
]))
fillet.setExpression("Radius", "Params.fillet_radius")
doc.recompute()

fillet2 = body.newObject("PartDesign::Fillet", "Fillet001")
fillet2.Base = (fillet, edges_at(fillet, [
    (68.917, 12.5, -57),
    (68.917, 12.5, -3),
    (123.917, 12.5, -57),
    (126.917, 12.5, -3),
    (123.917, 12.5, -3),
    (126.917, 12.5, -57),
    (178.471, 12.5, -57),
    (178.471, 12.5, -3),
]))
fillet2.setExpression("Radius", "Params.fillet2_radius")
doc.recompute()

fillet3 = body.newObject("PartDesign::Fillet", "Fillet002")
fillet3.Base = (fillet2, edges_at(fillet2, [
    (123.917, 27.5, -40.5),
    (126.917, 27.5, -40.5),
    (70.564, 27.5, -19.5),
    (68.917, 27.5, -20.758),
    (94.769, 27.5, -40.5),
    (98.064, 27.5, -40.5),
    (123.917, 27.5, -20.758),
    (122.269, 27.5, -19.5),
    (96.417, 27.5, -39.242),
    (128.57, 27.5, -19.5),
    (126.917, 27.5, -20.756),
    (152.912, 27.5, -40.5),
    (156.101, 27.5, -40.5),
    (186.04, 27.5, -20.55),
    (184.009, 27.5, -19.5),
    (154.478, 27.5, -39.178),
    (68.917, 27.5, -40.5),
    (185.812, 27.5, -40.5),
]))
fillet3.setExpression("Radius", "Params.fillet3_radius")

sketch9 = body.newObject("Sketcher::SketchObject", "Sketch008")
sketch9.AttachmentSupport = (doc.getObject("XZ_Plane"), [""])
sketch9.MapMode = "FlatFace"
sketch9.AttachmentOffset = App.Placement(Vector(0, 0, -30), App.Rotation())
sketch9.addGeometry([
    Part.LineSegment(Vector(116.4, -52.5, 0), Vector(76.4, -52.5, 0)),
    Part.ArcOfCircle(Part.Circle(Vector(76.4, -48, 0), Vector(0, 0, 1), 4.5), math.radians(90), math.radians(270)),
    Part.LineSegment(Vector(76.4, -43.5, 0), Vector(116.4, -43.5, 0)),
    Part.ArcOfCircle(Part.Circle(Vector(116.4, -48, 0), Vector(0, 0, 1), 4.5), math.radians(-90), math.radians(90)),
    Part.ArcOfCircle(Part.Circle(Vector(116.4, -48, 0), Vector(0, 0, 1), 2.2), math.radians(-90), math.radians(90)),
    Part.LineSegment(Vector(116.4, -45.8, 0), Vector(76.4, -45.8, 0)),
    Part.ArcOfCircle(Part.Circle(Vector(76.4, -48, 0), Vector(0, 0, 1), 2.2), math.radians(90), math.radians(270)),
    Part.LineSegment(Vector(76.4, -50.2, 0), Vector(116.4, -50.2, 0)),
    Part.LineSegment(Vector(174.4, -52.5, 0), Vector(134.4, -52.5, 0)),
    Part.ArcOfCircle(Part.Circle(Vector(134.4, -48, 0), Vector(0, 0, 1), 4.5), math.radians(90), math.radians(270)),
    Part.LineSegment(Vector(134.4, -43.5, 0), Vector(174.4, -43.5, 0)),
    Part.ArcOfCircle(Part.Circle(Vector(174.4, -48, 0), Vector(0, 0, 1), 4.5), math.radians(-90), math.radians(90)),
    Part.ArcOfCircle(Part.Circle(Vector(174.4, -48, 0), Vector(0, 0, 1), 2.2), math.radians(-90), math.radians(90)),
    Part.LineSegment(Vector(174.4, -45.8, 0), Vector(134.4, -45.8, 0)),
    Part.ArcOfCircle(Part.Circle(Vector(134.4, -48, 0), Vector(0, 0, 1), 2.2), math.radians(90), math.radians(270)),
    Part.LineSegment(Vector(134.4, -50.2, 0), Vector(174.4, -50.2, 0)),
    Part.LineSegment(Vector(116.4, -16.5, 0), Vector(76.4, -16.5, 0)),
    Part.ArcOfCircle(Part.Circle(Vector(76.4, -12, 0), Vector(0, 0, 1), 4.5), math.radians(90), math.radians(270)),
    Part.LineSegment(Vector(76.4, -7.5, 0), Vector(116.4, -7.5, 0)),
    Part.ArcOfCircle(Part.Circle(Vector(116.4, -12, 0), Vector(0, 0, 1), 4.5), math.radians(-90), math.radians(90)),
    Part.ArcOfCircle(Part.Circle(Vector(76.4, -12, 0), Vector(0, 0, 1), 2.2), math.radians(90), math.radians(270)),
    Part.LineSegment(Vector(76.4, -14.2, 0), Vector(116.4, -14.2, 0)),
    Part.ArcOfCircle(Part.Circle(Vector(116.4, -12, 0), Vector(0, 0, 1), 2.2), math.radians(-90), math.radians(90)),
    Part.LineSegment(Vector(116.4, -9.8, 0), Vector(76.4, -9.8, 0)),
    Part.LineSegment(Vector(174.4, -16.5, 0), Vector(134.4, -16.5, 0)),
    Part.ArcOfCircle(Part.Circle(Vector(134.4, -12, 0), Vector(0, 0, 1), 4.5), math.radians(90), math.radians(270)),
    Part.LineSegment(Vector(134.4, -7.5, 0), Vector(174.4, -7.5, 0)),
    Part.ArcOfCircle(Part.Circle(Vector(174.4, -12, 0), Vector(0, 0, 1), 4.5), math.radians(-90), math.radians(90)),
    Part.LineSegment(Vector(134.4, -14.2, 0), Vector(174.4, -14.2, 0)),
    Part.ArcOfCircle(Part.Circle(Vector(174.4, -12, 0), Vector(0, 0, 1), 2.2), math.radians(-90), math.radians(90)),
    Part.LineSegment(Vector(174.4, -9.8, 0), Vector(134.4, -9.8, 0)),
    Part.ArcOfCircle(Part.Circle(Vector(134.4, -12, 0), Vector(0, 0, 1), 2.2), math.radians(90), math.radians(270)),
], False)
sketch9.addConstraint([
    Sketcher.Constraint("Tangent", 0, 2, 1, 2),
    Sketcher.Constraint("Tangent", 1, 1, 2, 1),
    Sketcher.Constraint("Tangent", 2, 2, 3, 2),
    Sketcher.Constraint("Tangent", 3, 1, 0, 1),
    Sketcher.Constraint("Tangent", 4, 2, 5, 1),
    Sketcher.Constraint("Tangent", 5, 2, 6, 1),
    Sketcher.Constraint("Tangent", 6, 2, 7, 1),
    Sketcher.Constraint("Tangent", 7, 2, 4, 1),
    Sketcher.Constraint("Tangent", 8, 2, 9, 2),
    Sketcher.Constraint("Tangent", 9, 1, 10, 1),
    Sketcher.Constraint("Tangent", 10, 2, 11, 2),
    Sketcher.Constraint("Tangent", 11, 1, 8, 1),
    Sketcher.Constraint("Tangent", 12, 2, 13, 1),
    Sketcher.Constraint("Tangent", 13, 2, 14, 1),
    Sketcher.Constraint("Tangent", 14, 2, 15, 1),
    Sketcher.Constraint("Tangent", 15, 2, 12, 1),
    Sketcher.Constraint("Tangent", 16, 2, 17, 2),
    Sketcher.Constraint("Tangent", 17, 1, 18, 1),
    Sketcher.Constraint("Tangent", 18, 2, 19, 2),
    Sketcher.Constraint("Tangent", 19, 1, 16, 1),
    Sketcher.Constraint("Tangent", 20, 2, 21, 1),
    Sketcher.Constraint("Tangent", 21, 2, 22, 1),
    Sketcher.Constraint("Tangent", 22, 2, 23, 1),
    Sketcher.Constraint("Tangent", 23, 2, 20, 1),
    Sketcher.Constraint("Tangent", 24, 2, 25, 2),
    Sketcher.Constraint("Tangent", 25, 1, 26, 1),
    Sketcher.Constraint("Tangent", 26, 2, 27, 2),
    Sketcher.Constraint("Tangent", 27, 1, 24, 1),
    Sketcher.Constraint("Tangent", 28, 2, 29, 1),
    Sketcher.Constraint("Tangent", 29, 2, 30, 1),
    Sketcher.Constraint("Tangent", 30, 2, 31, 1),
    Sketcher.Constraint("Tangent", 31, 2, 28, 1),
    Sketcher.Constraint("Horizontal", 0),
    Sketcher.Constraint("Horizontal", 2),
    Sketcher.Constraint("Horizontal", 5),
    Sketcher.Constraint("Horizontal", 7),
    Sketcher.Constraint("Horizontal", 8),
    Sketcher.Constraint("Horizontal", 10),
    Sketcher.Constraint("Horizontal", 13),
    Sketcher.Constraint("Horizontal", 15),
    Sketcher.Constraint("Horizontal", 16),
    Sketcher.Constraint("Horizontal", 18),
    Sketcher.Constraint("Horizontal", 21),
    Sketcher.Constraint("Horizontal", 23),
    Sketcher.Constraint("Horizontal", 24),
    Sketcher.Constraint("Horizontal", 26),
    Sketcher.Constraint("Horizontal", 28),
    Sketcher.Constraint("Horizontal", 30),
    Sketcher.Constraint("Coincident", 4, 3, 3, 3),
    Sketcher.Constraint("Coincident", 12, 3, 11, 3),
    Sketcher.Constraint("Coincident", 20, 3, 17, 3),
    Sketcher.Constraint("Coincident", 29, 3, 27, 3),
    Sketcher.Constraint("Equal", 3, 9),
    Sketcher.Constraint("Equal", 6, 12),
    Sketcher.Constraint("Equal", 11, 17),
    Sketcher.Constraint("Equal", 14, 20),
    Sketcher.Constraint("Equal", 19, 25),
    Sketcher.Constraint("Equal", 22, 29),
    Sketcher.Constraint("Horizontal", 6, 3, 9, 3),
    Sketcher.Constraint("Horizontal", 22, 3, 25, 3),
    Sketcher.Constraint("Vertical", 6, 3, 17, 3),
    Sketcher.Constraint("Vertical", 4, 3, 19, 3),
    Sketcher.Constraint("Vertical", 4, 3, 22, 3),
    Sketcher.Constraint("Vertical", 14, 3, 25, 3),
    Sketcher.Constraint("Vertical", 12, 3, 27, 3),
    Sketcher.Constraint("Vertical", 14, 3, 31, 3),
    Sketcher.Constraint("Vertical", 20, 3, 0, 2),
    Sketcher.Constraint("Vertical", 31, 3, 8, 2),
    Sketcher.Constraint("Equal", 7, 8),
    Sketcher.Constraint("Radius", 1, 4.5),
    Sketcher.Constraint("DistanceX", 0, 2, 0, 1, 40.0),
    Sketcher.Constraint("Radius", 4, 2.25),
    Sketcher.Constraint("DistanceY", 1, 3, -1, 1, 48.0),
    Sketcher.Constraint("DistanceY", 17, 3, -1, 1, 12.0),
    Sketcher.Constraint("DistanceX", 3, 3, 9, 3, 18.0),
    Sketcher.Constraint("DistanceX", -1, 1, 1, 3, 76.416587),
])
sketch9.setExpression("Constraints[69]", "Params.sketch9_radius")
sketch9.setExpression("Constraints[70]", "Params.sketch9_width")
sketch9.setExpression("Constraints[71]", "Params.sketch9_radius2")
pad8 = body.newObject("PartDesign::Pad", "Pad007")
pad8.Profile = sketch9
pad8.setExpression("Length", "Params.pad8_length")
body2 = doc.addObject("PartDesign::Body", "Body001")

sketch10 = body2.newObject("Sketcher::SketchObject", "Sketch009")
sketch10.AttachmentSupport = (doc.getObject("XZ_Plane001"), [""])
sketch10.MapMode = "FlatFace"
sketch10.AttachmentOffset = App.Placement(Vector(0, 0, -30), App.Rotation())
sketch10.addGeometry(Part.Circle(Vector(140, -30, 0), Vector(0, 0, 1), 10), False)
sketch10.addConstraint([
    Sketcher.Constraint("Diameter", 0, 20.0),
    Sketcher.Constraint("DistanceX", -1, 1, 0, 3, 140.0),
    Sketcher.Constraint("DistanceY", 0, 3, -1, 1, 30.0),
])
sketch10.setExpression("Constraints[0]", "Params.sketch10_diameter")
pad9 = body2.newObject("PartDesign::Pad", "Pad008")
pad9.Profile = sketch10
pad9.setExpression("Length", "Params.pad9_length")

doc.recompute()
